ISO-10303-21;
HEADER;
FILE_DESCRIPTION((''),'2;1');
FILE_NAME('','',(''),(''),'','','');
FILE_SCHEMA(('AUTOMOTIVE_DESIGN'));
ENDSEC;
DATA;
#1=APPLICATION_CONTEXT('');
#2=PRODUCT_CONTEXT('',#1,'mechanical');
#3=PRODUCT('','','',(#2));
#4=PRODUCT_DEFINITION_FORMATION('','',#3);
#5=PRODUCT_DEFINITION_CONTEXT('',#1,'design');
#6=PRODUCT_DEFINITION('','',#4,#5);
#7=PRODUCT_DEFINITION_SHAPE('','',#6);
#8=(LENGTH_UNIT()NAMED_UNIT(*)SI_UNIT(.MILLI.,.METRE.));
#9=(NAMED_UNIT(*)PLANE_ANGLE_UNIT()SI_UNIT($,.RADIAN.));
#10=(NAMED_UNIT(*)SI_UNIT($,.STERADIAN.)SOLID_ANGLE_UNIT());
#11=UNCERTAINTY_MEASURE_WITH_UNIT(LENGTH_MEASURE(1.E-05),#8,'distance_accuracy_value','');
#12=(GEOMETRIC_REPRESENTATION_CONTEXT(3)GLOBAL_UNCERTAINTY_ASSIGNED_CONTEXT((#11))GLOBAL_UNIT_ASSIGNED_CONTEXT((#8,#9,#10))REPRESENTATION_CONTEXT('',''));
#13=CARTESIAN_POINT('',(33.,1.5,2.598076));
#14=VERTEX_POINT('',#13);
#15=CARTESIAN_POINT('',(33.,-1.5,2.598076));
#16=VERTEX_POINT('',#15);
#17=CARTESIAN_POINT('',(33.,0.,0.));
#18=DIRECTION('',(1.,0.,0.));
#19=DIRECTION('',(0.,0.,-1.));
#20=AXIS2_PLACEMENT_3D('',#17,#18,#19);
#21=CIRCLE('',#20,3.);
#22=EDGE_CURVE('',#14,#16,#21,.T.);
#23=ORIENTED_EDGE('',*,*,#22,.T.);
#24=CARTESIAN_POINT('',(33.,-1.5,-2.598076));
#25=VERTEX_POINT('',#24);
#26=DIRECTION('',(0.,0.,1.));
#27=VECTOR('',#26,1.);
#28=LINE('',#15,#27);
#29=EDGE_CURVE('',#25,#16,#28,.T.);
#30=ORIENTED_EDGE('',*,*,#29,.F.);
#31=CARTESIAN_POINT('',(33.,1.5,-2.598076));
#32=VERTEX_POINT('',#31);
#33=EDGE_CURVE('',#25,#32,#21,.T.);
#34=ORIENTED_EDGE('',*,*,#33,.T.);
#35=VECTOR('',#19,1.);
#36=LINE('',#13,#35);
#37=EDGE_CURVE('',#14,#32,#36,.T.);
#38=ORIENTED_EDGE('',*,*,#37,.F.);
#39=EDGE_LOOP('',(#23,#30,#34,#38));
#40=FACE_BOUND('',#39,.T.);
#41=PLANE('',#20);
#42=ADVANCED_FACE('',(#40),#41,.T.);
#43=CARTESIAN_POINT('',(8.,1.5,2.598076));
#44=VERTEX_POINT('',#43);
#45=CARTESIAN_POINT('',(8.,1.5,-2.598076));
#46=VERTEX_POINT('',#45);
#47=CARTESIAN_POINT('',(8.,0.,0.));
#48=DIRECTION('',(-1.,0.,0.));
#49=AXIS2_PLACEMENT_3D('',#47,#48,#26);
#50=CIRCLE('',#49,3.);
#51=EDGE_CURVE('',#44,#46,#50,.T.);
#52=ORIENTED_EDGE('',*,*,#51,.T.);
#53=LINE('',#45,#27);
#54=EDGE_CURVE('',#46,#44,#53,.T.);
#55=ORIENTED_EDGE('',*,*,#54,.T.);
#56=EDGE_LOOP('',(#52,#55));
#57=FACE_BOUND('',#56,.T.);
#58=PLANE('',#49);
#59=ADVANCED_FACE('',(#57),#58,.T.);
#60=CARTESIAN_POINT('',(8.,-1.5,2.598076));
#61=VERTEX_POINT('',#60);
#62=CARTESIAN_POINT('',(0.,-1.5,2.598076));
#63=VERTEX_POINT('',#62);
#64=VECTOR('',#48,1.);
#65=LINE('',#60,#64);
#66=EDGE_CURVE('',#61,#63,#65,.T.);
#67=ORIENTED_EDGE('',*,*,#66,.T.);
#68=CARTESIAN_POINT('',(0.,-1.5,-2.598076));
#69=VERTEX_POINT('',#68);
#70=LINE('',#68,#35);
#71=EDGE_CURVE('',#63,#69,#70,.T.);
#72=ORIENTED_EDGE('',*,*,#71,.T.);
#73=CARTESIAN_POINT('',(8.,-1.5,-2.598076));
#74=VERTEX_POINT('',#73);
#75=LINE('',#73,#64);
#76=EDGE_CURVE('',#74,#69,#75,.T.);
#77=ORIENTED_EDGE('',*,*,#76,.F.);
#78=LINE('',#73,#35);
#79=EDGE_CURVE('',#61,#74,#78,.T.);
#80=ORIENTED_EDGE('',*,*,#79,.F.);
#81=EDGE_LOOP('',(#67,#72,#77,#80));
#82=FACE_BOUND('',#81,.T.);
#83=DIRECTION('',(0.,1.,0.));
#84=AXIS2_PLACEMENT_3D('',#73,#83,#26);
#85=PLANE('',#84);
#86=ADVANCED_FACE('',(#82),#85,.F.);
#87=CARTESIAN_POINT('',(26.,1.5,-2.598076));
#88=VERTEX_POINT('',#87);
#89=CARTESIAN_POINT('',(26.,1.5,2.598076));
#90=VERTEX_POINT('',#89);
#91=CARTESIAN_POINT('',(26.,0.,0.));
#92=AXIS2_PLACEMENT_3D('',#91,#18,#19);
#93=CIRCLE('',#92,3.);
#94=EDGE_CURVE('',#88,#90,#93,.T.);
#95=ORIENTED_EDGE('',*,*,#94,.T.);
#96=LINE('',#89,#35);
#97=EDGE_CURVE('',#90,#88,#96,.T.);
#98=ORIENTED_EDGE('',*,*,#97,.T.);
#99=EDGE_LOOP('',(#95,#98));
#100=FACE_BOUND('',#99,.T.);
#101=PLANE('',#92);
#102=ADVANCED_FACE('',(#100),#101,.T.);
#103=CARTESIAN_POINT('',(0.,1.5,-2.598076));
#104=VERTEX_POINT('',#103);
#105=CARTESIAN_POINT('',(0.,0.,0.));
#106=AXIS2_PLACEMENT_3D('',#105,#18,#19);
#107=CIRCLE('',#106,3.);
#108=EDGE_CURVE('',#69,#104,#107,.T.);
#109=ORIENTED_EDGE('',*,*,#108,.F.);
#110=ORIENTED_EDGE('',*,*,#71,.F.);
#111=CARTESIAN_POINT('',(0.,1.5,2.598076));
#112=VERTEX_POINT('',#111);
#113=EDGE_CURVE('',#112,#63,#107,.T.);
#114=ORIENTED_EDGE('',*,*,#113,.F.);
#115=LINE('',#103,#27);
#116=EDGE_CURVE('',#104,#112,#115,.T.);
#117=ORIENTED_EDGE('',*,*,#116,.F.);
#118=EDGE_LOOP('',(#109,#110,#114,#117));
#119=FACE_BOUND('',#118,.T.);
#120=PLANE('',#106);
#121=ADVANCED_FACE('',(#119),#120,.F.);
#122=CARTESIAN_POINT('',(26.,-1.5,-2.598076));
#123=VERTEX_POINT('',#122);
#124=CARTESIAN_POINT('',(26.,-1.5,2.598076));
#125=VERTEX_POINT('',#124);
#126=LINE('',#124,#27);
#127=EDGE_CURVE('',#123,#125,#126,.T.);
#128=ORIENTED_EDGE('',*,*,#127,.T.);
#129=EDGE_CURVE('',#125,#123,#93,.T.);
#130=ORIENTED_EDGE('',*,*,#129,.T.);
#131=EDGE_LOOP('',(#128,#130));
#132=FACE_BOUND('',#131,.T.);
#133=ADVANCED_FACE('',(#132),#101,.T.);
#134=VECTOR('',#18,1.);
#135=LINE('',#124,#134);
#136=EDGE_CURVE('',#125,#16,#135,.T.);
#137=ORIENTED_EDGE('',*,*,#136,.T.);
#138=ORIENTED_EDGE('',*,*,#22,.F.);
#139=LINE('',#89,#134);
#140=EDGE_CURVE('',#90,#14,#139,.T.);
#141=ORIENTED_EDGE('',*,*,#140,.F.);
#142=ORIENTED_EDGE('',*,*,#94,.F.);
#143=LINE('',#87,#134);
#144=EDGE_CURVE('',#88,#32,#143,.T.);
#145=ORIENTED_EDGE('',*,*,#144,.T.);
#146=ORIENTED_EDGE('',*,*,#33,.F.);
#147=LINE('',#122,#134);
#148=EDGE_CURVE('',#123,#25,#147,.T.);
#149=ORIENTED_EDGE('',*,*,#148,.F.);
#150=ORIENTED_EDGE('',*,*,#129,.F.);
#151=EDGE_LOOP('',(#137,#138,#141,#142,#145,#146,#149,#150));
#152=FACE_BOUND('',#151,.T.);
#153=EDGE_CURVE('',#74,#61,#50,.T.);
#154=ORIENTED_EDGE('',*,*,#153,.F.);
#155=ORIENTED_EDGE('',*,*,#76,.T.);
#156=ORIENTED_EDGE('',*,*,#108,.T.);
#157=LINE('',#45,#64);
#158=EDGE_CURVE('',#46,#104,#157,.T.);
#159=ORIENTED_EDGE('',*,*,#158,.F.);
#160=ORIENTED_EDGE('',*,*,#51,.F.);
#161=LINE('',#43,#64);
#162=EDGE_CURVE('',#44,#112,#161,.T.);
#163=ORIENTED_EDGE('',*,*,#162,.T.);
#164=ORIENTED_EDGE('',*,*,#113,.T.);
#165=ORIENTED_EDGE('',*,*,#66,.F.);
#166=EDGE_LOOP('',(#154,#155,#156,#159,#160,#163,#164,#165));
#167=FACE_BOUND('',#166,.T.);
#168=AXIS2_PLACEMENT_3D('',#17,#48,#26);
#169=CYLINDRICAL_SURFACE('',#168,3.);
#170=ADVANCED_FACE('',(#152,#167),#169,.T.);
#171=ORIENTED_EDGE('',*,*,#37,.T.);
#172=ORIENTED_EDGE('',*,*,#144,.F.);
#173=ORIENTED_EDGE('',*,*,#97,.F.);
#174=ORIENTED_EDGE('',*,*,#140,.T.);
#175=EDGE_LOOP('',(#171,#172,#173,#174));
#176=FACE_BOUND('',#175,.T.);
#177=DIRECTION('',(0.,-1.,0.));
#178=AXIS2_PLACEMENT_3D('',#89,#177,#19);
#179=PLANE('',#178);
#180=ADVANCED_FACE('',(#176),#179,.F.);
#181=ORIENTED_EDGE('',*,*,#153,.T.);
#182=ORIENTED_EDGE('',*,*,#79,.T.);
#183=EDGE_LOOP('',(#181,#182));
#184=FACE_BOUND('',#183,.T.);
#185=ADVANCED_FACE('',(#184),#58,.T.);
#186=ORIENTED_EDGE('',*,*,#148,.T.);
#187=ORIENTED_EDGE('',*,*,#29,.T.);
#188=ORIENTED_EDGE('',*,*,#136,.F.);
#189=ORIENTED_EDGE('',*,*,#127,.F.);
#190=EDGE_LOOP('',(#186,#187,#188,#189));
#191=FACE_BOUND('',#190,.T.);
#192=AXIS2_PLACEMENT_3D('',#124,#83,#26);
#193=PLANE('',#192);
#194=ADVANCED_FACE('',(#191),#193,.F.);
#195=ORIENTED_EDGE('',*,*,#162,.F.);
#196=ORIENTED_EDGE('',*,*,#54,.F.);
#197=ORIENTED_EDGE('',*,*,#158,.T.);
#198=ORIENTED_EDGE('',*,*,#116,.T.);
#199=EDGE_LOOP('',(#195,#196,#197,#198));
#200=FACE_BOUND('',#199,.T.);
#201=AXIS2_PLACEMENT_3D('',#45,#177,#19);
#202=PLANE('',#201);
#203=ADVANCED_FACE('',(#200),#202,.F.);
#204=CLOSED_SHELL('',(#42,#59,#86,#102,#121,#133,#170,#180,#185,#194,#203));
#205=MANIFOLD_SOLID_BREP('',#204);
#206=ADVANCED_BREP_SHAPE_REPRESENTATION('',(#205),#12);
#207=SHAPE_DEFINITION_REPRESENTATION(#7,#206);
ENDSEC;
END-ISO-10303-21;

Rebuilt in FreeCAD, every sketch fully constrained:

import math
import FreeCAD as App
import Part
import Sketcher
from FreeCAD import Vector
Q = App.Units.Quantity

doc = App.newDocument("Part")
params = doc.addObject("Spreadsheet::Sheet", "Params")
for row, (alias, value) in enumerate([
    ("sketch1_diameter", "6 mm"),
    ("pad1_length", "33 mm"),
    ("sketch2_radius", "3 mm"),
    ("pocket1_length", "8 mm"),
    ("sketch3_radius", "3 mm"),
    ("pocket2_length", "7 mm"),
], start=1):
    params.set(f"A{row}", alias)
    params.set(f"B{row}", "=" + value)
    params.setAlias(f"B{row}", alias)

body = doc.addObject("PartDesign::Body", "Body")

# Sketch on YZ plane
sketch1 = doc.addObject("Sketcher::SketchObject", "Sketch")
body.addObject(sketch1)
sketch1.AttachmentSupport = (doc.YZ_Plane, [""])
sketch1.MapMode = "FlatFace"
sketch1.addGeometry(Part.Circle(Vector(0, 0, 0), Vector(0, 0, 1), 3), False)
sketch1.addConstraint(Sketcher.Constraint("Coincident", 0, 3, -1, 1))
sketch1.addConstraint(Sketcher.Constraint("Diameter", 0, Q("6 mm")))
sketch1.setExpression("Constraints[1]", "Params.sketch1_diameter")
pad1 = doc.addObject("PartDesign::Pad", "Pad")
body.addObject(pad1)
pad1.Profile = sketch1
pad1.setExpression("Length", "Params.pad1_length")

# Sketch on YZ plane
sketch2 = doc.addObject("Sketcher::SketchObject", "Sketch001")
body.addObject(sketch2)
sketch2.AttachmentSupport = (doc.YZ_Plane, [""])
sketch2.MapMode = "FlatFace"
sketch2.addGeometry(Part.LineSegment(Vector(1.5, -2.598076, 0), Vector(1.5, 2.598076, 0)), False)
sketch2.addGeometry(Part.ArcOfCircle(Part.Circle(Vector(0, 0, 0), Vector(0, 0, 1), 3), math.radians(-60), math.radians(60)), False)
sketch2.addGeometry(Part.LineSegment(Vector(-1.5, 2.598076, 0), Vector(-1.5, -2.598076, 0)), False)
sketch2.addGeometry(Part.ArcOfCircle(Part.Circle(Vector(0, 0, 0), Vector(0, 0, 1), 3), math.radians(120), math.radians(240)), False)
sketch2.addConstraint(Sketcher.Constraint("Coincident", 0, 1, 1, 1))
sketch2.addConstraint(Sketcher.Constraint("Coincident", 1, 2, 0, 2))
sketch2.addConstraint(Sketcher.Constraint("Coincident", 2, 1, 3, 1))
sketch2.addConstraint(Sketcher.Constraint("Coincident", 3, 2, 2, 2))
sketch2.addConstraint(Sketcher.Constraint("Vertical", 0))
sketch2.addConstraint(Sketcher.Constraint("Vertical", 2))
sketch2.addConstraint(Sketcher.Constraint("Coincident", 1, 3, -1, 1))
sketch2.addConstraint(Sketcher.Constraint("Coincident", 3, 3, -1, 1))
sketch2.addConstraint(Sketcher.Constraint("Equal", 1, 3))
sketch2.addConstraint(Sketcher.Constraint("Horizontal", 1, 2, 2, 1))
sketch2.addConstraint(Sketcher.Constraint("Radius", 1, Q("3 mm")))
sketch2.addConstraint(Sketcher.Constraint("DistanceX", 2, 1, 1, 2, Q("3 mm")))
sketch2.setExpression("Constraints[10]", "Params.sketch2_radius")
pocket1 = doc.addObject("PartDesign::Pocket", "Pocket")
body.addObject(pocket1)
pocket1.Profile = sketch2
pocket1.setExpression("Length", "Params.pocket1_length")
pocket1.Reversed = True

# Sketch on YZ plane
sketch3 = doc.addObject("Sketcher::SketchObject", "Sketch002")
body.addObject(sketch3)
sketch3.AttachmentSupport = (doc.YZ_Plane, [""])
sketch3.MapMode = "FlatFace"
sketch3.AttachmentOffset = App.Placement(Vector(0, 0, 26), App.Rotation())
sketch3.addGeometry(Part.LineSegment(Vector(1.5, 2.598076, 0), Vector(1.5, -2.598076, 0)), False)
sketch3.addGeometry(Part.ArcOfCircle(Part.Circle(Vector(0, 0, 0), Vector(0, 0, 1), 3), math.radians(-60), math.radians(60)), False)
sketch3.addGeometry(Part.LineSegment(Vector(-1.5, -2.598076, 0), Vector(-1.5, 2.598076, 0)), False)
sketch3.addGeometry(Part.ArcOfCircle(Part.Circle(Vector(0, 0, 0), Vector(0, 0, 1), 3), math.radians(120), math.radians(240)), False)
sketch3.addConstraint(Sketcher.Constraint("Coincident", 0, 1, 1, 2))
sketch3.addConstraint(Sketcher.Constraint("Coincident", 1, 1, 0, 2))
sketch3.addConstraint(Sketcher.Constraint("Coincident", 2, 1, 3, 2))
sketch3.addConstraint(Sketcher.Constraint("Coincident", 3, 1, 2, 2))
sketch3.addConstraint(Sketcher.Constraint("Vertical", 0))
sketch3.addConstraint(Sketcher.Constraint("Vertical", 2))
sketch3.addConstraint(Sketcher.Constraint("Coincident", 1, 3, -1, 1))
sketch3.addConstraint(Sketcher.Constraint("Coincident", 3, 3, -1, 1))
sketch3.addConstraint(Sketcher.Constraint("Equal", 1, 3))
sketch3.addConstraint(Sketcher.Constraint("Horizontal", 1, 1, 2, 1))
sketch3.addConstraint(Sketcher.Constraint("Radius", 1, Q("3 mm")))
sketch3.addConstraint(Sketcher.Constraint("DistanceX", 2, 1, 1, 1, Q("3 mm")))
sketch3.setExpression("Constraints[10]", "Params.sketch3_radius")
pocket2 = doc.addObject("PartDesign::Pocket", "Pocket001")
body.addObject(pocket2)
pocket2.Profile = sketch3
pocket2.setExpression("Length", "Params.pocket2_length")
pocket2.Reversed = True

doc.recompute()
